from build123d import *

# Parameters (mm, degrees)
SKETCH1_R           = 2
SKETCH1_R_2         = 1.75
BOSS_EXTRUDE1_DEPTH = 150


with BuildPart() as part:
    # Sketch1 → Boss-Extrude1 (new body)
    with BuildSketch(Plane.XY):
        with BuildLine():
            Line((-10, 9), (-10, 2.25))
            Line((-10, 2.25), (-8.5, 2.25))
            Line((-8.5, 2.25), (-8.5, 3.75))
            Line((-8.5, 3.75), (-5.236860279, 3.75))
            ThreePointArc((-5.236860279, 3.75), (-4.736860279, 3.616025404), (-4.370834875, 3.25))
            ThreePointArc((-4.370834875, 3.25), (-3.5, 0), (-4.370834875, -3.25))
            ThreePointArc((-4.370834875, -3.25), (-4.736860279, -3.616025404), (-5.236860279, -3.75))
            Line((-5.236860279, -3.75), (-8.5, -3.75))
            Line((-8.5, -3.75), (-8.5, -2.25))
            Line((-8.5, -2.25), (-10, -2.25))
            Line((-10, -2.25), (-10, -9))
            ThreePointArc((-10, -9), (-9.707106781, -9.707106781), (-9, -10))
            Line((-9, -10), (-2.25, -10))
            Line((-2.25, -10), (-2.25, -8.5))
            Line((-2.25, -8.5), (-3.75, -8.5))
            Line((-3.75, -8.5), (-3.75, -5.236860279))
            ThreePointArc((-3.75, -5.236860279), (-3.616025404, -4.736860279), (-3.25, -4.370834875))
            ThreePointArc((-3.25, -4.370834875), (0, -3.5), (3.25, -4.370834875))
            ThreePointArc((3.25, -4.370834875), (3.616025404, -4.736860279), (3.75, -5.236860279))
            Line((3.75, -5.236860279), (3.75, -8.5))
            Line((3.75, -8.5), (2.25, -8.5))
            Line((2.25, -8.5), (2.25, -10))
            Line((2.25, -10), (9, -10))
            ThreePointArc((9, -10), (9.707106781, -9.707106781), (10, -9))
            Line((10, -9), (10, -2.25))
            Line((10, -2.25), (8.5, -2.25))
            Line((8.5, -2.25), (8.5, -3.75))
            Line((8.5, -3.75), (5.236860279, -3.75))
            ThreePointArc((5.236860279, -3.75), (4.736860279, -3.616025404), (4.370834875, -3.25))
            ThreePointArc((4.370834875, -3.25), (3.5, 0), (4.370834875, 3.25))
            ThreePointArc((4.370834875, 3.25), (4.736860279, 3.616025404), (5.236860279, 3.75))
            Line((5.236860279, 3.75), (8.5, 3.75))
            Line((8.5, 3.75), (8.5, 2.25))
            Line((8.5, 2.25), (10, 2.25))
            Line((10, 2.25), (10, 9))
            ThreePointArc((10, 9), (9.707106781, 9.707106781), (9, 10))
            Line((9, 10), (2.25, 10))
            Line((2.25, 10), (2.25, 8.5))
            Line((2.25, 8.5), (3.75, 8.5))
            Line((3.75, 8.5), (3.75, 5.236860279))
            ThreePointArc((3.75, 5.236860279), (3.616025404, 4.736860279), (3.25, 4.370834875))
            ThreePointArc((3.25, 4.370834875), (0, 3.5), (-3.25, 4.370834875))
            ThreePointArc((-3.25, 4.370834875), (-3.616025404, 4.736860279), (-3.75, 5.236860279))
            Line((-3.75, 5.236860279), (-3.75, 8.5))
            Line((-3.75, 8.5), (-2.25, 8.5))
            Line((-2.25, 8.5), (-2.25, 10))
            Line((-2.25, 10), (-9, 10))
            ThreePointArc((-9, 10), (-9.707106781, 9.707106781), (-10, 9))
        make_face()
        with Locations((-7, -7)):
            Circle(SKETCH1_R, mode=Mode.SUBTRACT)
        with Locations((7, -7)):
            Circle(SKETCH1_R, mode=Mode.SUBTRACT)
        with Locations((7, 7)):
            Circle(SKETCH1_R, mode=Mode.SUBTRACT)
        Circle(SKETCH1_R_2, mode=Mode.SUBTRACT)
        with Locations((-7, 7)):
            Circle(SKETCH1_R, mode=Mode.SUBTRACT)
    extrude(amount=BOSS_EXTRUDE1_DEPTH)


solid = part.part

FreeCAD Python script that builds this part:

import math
import FreeCAD as App
import Part
import Sketcher

V = App.Vector

doc = App.newDocument("Part")
body = doc.addObject("PartDesign::Body", "Body")

# Sketch on XY plane
sketch1 = body.newObject("Sketcher::SketchObject", "Sketch")
sketch1.AttachmentSupport = (doc.getObject("XY_Plane"), [""])
sketch1.MapMode = "FlatFace"
sketch1.addGeometry([
    Part.LineSegment(V(-10, 9, 0), V(-10, 2.25, 0)),  # 0
    Part.LineSegment(V(-10, 2.25, 0), V(-8.5, 2.25, 0)),  # 1
    Part.LineSegment(V(-8.5, 2.25, 0), V(-8.5, 3.75, 0)),  # 2
    Part.LineSegment(V(-8.5, 3.75, 0), V(-5.23686, 3.75, 0)),  # 3
    Part.ArcOfCircle(Part.Circle(V(-5.23686, 2.75, 0), V(0, 0, 1), 1), math.radians(30), math.radians(90)),  # 4
    Part.ArcOfCircle(Part.Circle(V(-10, 0, 0), V(0, 0, 1), 6.5), math.radians(-30), math.radians(30)),  # 5
    Part.ArcOfCircle(Part.Circle(V(-5.23686, -2.75, 0), V(0, 0, 1), 1), math.radians(-90), math.radians(-30)),  # 6
    Part.LineSegment(V(-5.23686, -3.75, 0), V(-8.5, -3.75, 0)),  # 7
    Part.LineSegment(V(-8.5, -3.75, 0), V(-8.5, -2.25, 0)),  # 8
    Part.LineSegment(V(-8.5, -2.25, 0), V(-10, -2.25, 0)),  # 9
    Part.LineSegment(V(-10, -2.25, 0), V(-10, -9, 0)),  # 10
    Part.ArcOfCircle(Part.Circle(V(-9, -9, 0), V(0, 0, 1), 1), math.radians(-180), math.radians(-90)),  # 11
    Part.LineSegment(V(-9, -10, 0), V(-2.25, -10, 0)),  # 12
    Part.LineSegment(V(-2.25, -10, 0), V(-2.25, -8.5, 0)),  # 13
    Part.LineSegment(V(-2.25, -8.5, 0), V(-3.75, -8.5, 0)),  # 14
    Part.LineSegment(V(-3.75, -8.5, 0), V(-3.75, -5.23686, 0)),  # 15
    Part.ArcOfCircle(Part.Circle(V(-2.75, -5.23686, 0), V(0, 0, 1), 1), math.radians(120), math.radians(180)),  # 16
    Part.ArcOfCircle(Part.Circle(V(0, -10, 0), V(0, 0, 1), 6.5), math.radians(60), math.radians(120)),  # 17
    Part.ArcOfCircle(Part.Circle(V(2.75, -5.23686, 0), V(0, 0, 1), 1), math.radians(0), math.radians(60)),  # 18
    Part.LineSegment(V(3.75, -5.23686, 0), V(3.75, -8.5, 0)),  # 19
    Part.LineSegment(V(3.75, -8.5, 0), V(2.25, -8.5, 0)),  # 20
    Part.LineSegment(V(2.25, -8.5, 0), V(2.25, -10, 0)),  # 21
    Part.LineSegment(V(2.25, -10, 0), V(9, -10, 0)),  # 22
    Part.ArcOfCircle(Part.Circle(V(9, -9, 0), V(0, 0, 1), 1), math.radians(-90), math.radians(0)),  # 23
    Part.LineSegment(V(10, -9, 0), V(10, -2.25, 0)),  # 24
    Part.LineSegment(V(10, -2.25, 0), V(8.5, -2.25, 0)),  # 25
    Part.LineSegment(V(8.5, -2.25, 0), V(8.5, -3.75, 0)),  # 26
    Part.LineSegment(V(8.5, -3.75, 0), V(5.23686, -3.75, 0)),  # 27
    Part.ArcOfCircle(Part.Circle(V(5.23686, -2.75, 0), V(0, 0, 1), 1), math.radians(-150), math.radians(-90)),  # 28
    Part.ArcOfCircle(Part.Circle(V(10, 0, 0), V(0, 0, 1), 6.5), math.radians(150), math.radians(210)),  # 29
    Part.ArcOfCircle(Part.Circle(V(5.23686, 2.75, 0), V(0, 0, 1), 1), math.radians(90), math.radians(150)),  # 30
    Part.LineSegment(V(5.23686, 3.75, 0), V(8.5, 3.75, 0)),  # 31
    Part.LineSegment(V(8.5, 3.75, 0), V(8.5, 2.25, 0)),  # 32
    Part.LineSegment(V(8.5, 2.25, 0), V(10, 2.25, 0)),  # 33
    Part.LineSegment(V(10, 2.25, 0), V(10, 9, 0)),  # 34
    Part.ArcOfCircle(Part.Circle(V(9, 9, 0), V(0, 0, 1), 1), math.radians(0), math.radians(90)),  # 35
    Part.LineSegment(V(9, 10, 0), V(2.25, 10, 0)),  # 36
    Part.LineSegment(V(2.25, 10, 0), V(2.25, 8.5, 0)),  # 37
    Part.LineSegment(V(2.25, 8.5, 0), V(3.75, 8.5, 0)),  # 38
    Part.LineSegment(V(3.75, 8.5, 0), V(3.75, 5.23686, 0)),  # 39
    Part.ArcOfCircle(Part.Circle(V(2.75, 5.23686, 0), V(0, 0, 1), 1), math.radians(-60), math.radians(0)),  # 40
    Part.ArcOfCircle(Part.Circle(V(0, 10, 0), V(0, 0, 1), 6.5), math.radians(-120), math.radians(-60)),  # 41
    Part.ArcOfCircle(Part.Circle(V(-2.75, 5.23686, 0), V(0, 0, 1), 1), math.radians(180), math.radians(240)),  # 42
    Part.LineSegment(V(-3.75, 5.23686, 0), V(-3.75, 8.5, 0)),  # 43
    Part.LineSegment(V(-3.75, 8.5, 0), V(-2.25, 8.5, 0)),  # 44
    Part.LineSegment(V(-2.25, 8.5, 0), V(-2.25, 10, 0)),  # 45
    Part.LineSegment(V(-2.25, 10, 0), V(-9, 10, 0)),  # 46
    Part.ArcOfCircle(Part.Circle(V(-9, 9, 0), V(0, 0, 1), 1), math.radians(90), math.radians(180)),  # 47
    Part.Circle(V(-7, -7, 0), V(0, 0, 1), 2),  # 48
    Part.Circle(V(7, -7, 0), V(0, 0, 1), 2),  # 49
    Part.Circle(V(-7, 7, 0), V(0, 0, 1), 2),  # 50
    Part.Circle(V(0, 0, 0), V(0, 0, 1), 1.75),  # 51
    Part.Circle(V(7, 7, 0), V(0, 0, 1), 2),  # 52
], False)
sketch1.addConstraint([
    Sketcher.Constraint("Coincident", 0, 2, 1, 1),
    Sketcher.Constraint("Coincident", 1, 2, 2, 1),
    Sketcher.Constraint("Coincident", 2, 2, 3, 1),
    Sketcher.Constraint("Tangent", 3, 2, 4, 2),
    Sketcher.Constraint("Tangent", 4, 1, 5, 2),
    Sketcher.Constraint("Tangent", 5, 1, 6, 2),
    Sketcher.Constraint("Tangent", 6, 1, 7, 1),
    Sketcher.Constraint("Coincident", 7, 2, 8, 1),
    Sketcher.Constraint("Coincident", 8, 2, 9, 1),
    Sketcher.Constraint("Coincident", 9, 2, 10, 1),
    Sketcher.Constraint("Tangent", 10, 2, 11, 1),
    Sketcher.Constraint("Tangent", 11, 2, 12, 1),
    Sketcher.Constraint("Coincident", 12, 2, 13, 1),
    Sketcher.Constraint("Coincident", 13, 2, 14, 1),
    Sketcher.Constraint("Coincident", 14, 2, 15, 1),
    Sketcher.Constraint("Tangent", 15, 2, 16, 2),
    Sketcher.Constraint("Tangent", 16, 1, 17, 2),
    Sketcher.Constraint("Tangent", 17, 1, 18, 2),
    Sketcher.Constraint("Tangent", 18, 1, 19, 1),
    Sketcher.Constraint("Coincident", 19, 2, 20, 1),
    Sketcher.Constraint("Coincident", 20, 2, 21, 1),
    Sketcher.Constraint("Coincident", 21, 2, 22, 1),
    Sketcher.Constraint("Tangent", 22, 2, 23, 1),
    Sketcher.Constraint("Tangent", 23, 2, 24, 1),
    Sketcher.Constraint("Coincident", 24, 2, 25, 1),
    Sketcher.Constraint("Coincident", 25, 2, 26, 1),
    Sketcher.Constraint("Coincident", 26, 2, 27, 1),
    Sketcher.Constraint("Tangent", 27, 2, 28, 2),
    Sketcher.Constraint("Tangent", 28, 1, 29, 2),
    Sketcher.Constraint("Tangent", 29, 1, 30, 2),
    Sketcher.Constraint("Tangent", 30, 1, 31, 1),
    Sketcher.Constraint("Coincident", 31, 2, 32, 1),
    Sketcher.Constraint("Coincident", 32, 2, 33, 1),
    Sketcher.Constraint("Coincident", 33, 2, 34, 1),
    Sketcher.Constraint("Tangent", 34, 2, 35, 1),
    Sketcher.Constraint("Tangent", 35, 2, 36, 1),
    Sketcher.Constraint("Coincident", 36, 2, 37, 1),
    Sketcher.Constraint("Coincident", 37, 2, 38, 1),
    Sketcher.Constraint("Coincident", 38, 2, 39, 1),
    Sketcher.Constraint("Tangent", 39, 2, 40, 2),
    Sketcher.Constraint("Tangent", 40, 1, 41, 2),
    Sketcher.Constraint("Tangent", 41, 1, 42, 2),
    Sketcher.Constraint("Tangent", 42, 1, 43, 1),
    Sketcher.Constraint("Coincident", 43, 2, 44, 1),
    Sketcher.Constraint("Coincident", 44, 2, 45, 1),
    Sketcher.Constraint("Coincident", 45, 2, 46, 1),
    Sketcher.Constraint("Tangent", 46, 2, 47, 1),
    Sketcher.Constraint("Tangent", 47, 2, 0, 1),
    Sketcher.Constraint("Vertical", 0),
    Sketcher.Constraint("Horizontal", 1),
    Sketcher.Constraint("Vertical", 2),
    Sketcher.Constraint("Horizontal", 3),
    Sketcher.Constraint("Horizontal", 7),
    Sketcher.Constraint("Vertical", 8),
    Sketcher.Constraint("Horizontal", 9),
    Sketcher.Constraint("Vertical", 10),
    Sketcher.Constraint("Horizontal", 12),
    Sketcher.Constraint("Vertical", 13),
    Sketcher.Constraint("Horizontal", 14),
    Sketcher.Constraint("Vertical", 15),
    Sketcher.Constraint("Vertical", 19),
    Sketcher.Constraint("Horizontal", 20),
    Sketcher.Constraint("Vertical", 21),
    Sketcher.Constraint("Horizontal", 22),
    Sketcher.Constraint("Vertical", 24),
    Sketcher.Constraint("Horizontal", 25),
    Sketcher.Constraint("Vertical", 26),
    Sketcher.Constraint("Horizontal", 27),
    Sketcher.Constraint("Horizontal", 31),
    Sketcher.Constraint("Vertical", 32),
    Sketcher.Constraint("Horizontal", 33),
    Sketcher.Constraint("Vertical", 34),
    Sketcher.Constraint("Horizontal", 36),
    Sketcher.Constraint("Vertical", 37),
    Sketcher.Constraint("Horizontal", 38),
    Sketcher.Constraint("Vertical", 39),
    Sketcher.Constraint("Vertical", 43),
    Sketcher.Constraint("Horizontal", 44),
    Sketcher.Constraint("Vertical", 45),
    Sketcher.Constraint("Horizontal", 46),
    Sketcher.Constraint("Coincident", 51, 3, -1, 1),
    Sketcher.Constraint("Equal", 4, 6),
    Sketcher.Constraint("Equal", 6, 11),
    Sketcher.Constraint("Equal", 11, 16),
    Sketcher.Constraint("Equal", 5, 17),
    Sketcher.Constraint("Equal", 16, 18),
    Sketcher.Constraint("Equal", 18, 23),
    Sketcher.Constraint("Equal", 23, 28),
    Sketcher.Constraint("Equal", 17, 29),
    Sketcher.Constraint("Equal", 28, 30),
    Sketcher.Constraint("Equal", 30, 35),
    Sketcher.Constraint("Equal", 35, 40),
    Sketcher.Constraint("Equal", 29, 41),
    Sketcher.Constraint("Equal", 40, 42),
    Sketcher.Constraint("Equal", 42, 47),
    Sketcher.Constraint("Equal", 48, 49),
    Sketcher.Constraint("Equal", 49, 50),
    Sketcher.Constraint("Equal", 50, 52),
    Sketcher.Constraint("Symmetric", 4, 3, 28, 3, -1, 1),
    Sketcher.Constraint("Symmetric", 6, 3, 30, 3, -1, 1),
    Sketcher.Constraint("Symmetric", 11, 3, 35, 3, -1, 1),
    Sketcher.Constraint("Symmetric", 16, 3, 40, 3, -1, 1),
    Sketcher.Constraint("Symmetric", 18, 3, 42, 3, -1, 1),
    Sketcher.Constraint("Symmetric", 23, 3, 47, 3, -1, 1),
    Sketcher.Constraint("Symmetric", 49, 3, 50, 3, -1, 1),
    Sketcher.Constraint("Symmetric", 48, 3, 52, 3, -1, 1),
    Sketcher.Constraint("Symmetric", 1, 2, 25, 2, -1, 1),
    Sketcher.Constraint("Symmetric", 8, 2, 32, 2, -1, 1),
    Sketcher.Constraint("Symmetric", 13, 2, 37, 2, -1, 1),
    Sketcher.Constraint("Symmetric", 20, 2, 44, 2, -1, 1),
    Sketcher.Constraint("Symmetric", 16, 3, 18, 3, -2),
    Sketcher.Constraint("Symmetric", 11, 3, 23, 3, -2),
    Sketcher.Constraint("Symmetric", 6, 3, 28, 3, -2),
    Sketcher.Constraint("Symmetric", 48, 3, 49, 3, -2),
    Sketcher.Constraint("Symmetric", 13, 2, 20, 2, -2),
    Sketcher.Constraint("Symmetric", 8, 2, 25, 2, -2),
    Sketcher.Constraint("Horizontal", 17, 3, 11, 2),
    Sketcher.Constraint("Vertical", 5, 3, 0, 2),
    Sketcher.Constraint("Equal", 9, 14),
    Sketcher.Constraint("Equal", 46, 0),
    Sketcher.Constraint("Equal", 44, 2),
    Sketcher.Constraint("Equal", 8, 13),
    Sketcher.Constraint("Equal", 31, 15),
    Sketcher.Constraint("Diameter", 48, 4.0),
    Sketcher.Constraint("Radius", 4, 1.0),
    Sketcher.Constraint("Diameter", 51, 3.5),
    Sketcher.Constraint("Radius", 5, 6.5),
    Sketcher.Constraint("DistanceX", 1, 1, 1, 2, 1.5),
    Sketcher.Constraint("DistanceX", 5, 3, -1, 1, 10.0),
    Sketcher.Constraint("DistanceX", 48, 3, -1, 1, 7.0),
    Sketcher.Constraint("DistanceY", 48, 3, -1, 1, 7.0),
    Sketcher.Constraint("DistanceX", 12, 1, 12, 2, 6.75),
])
pad1 = body.newObject("PartDesign::Pad", "Pad")
pad1.Profile = sketch1
pad1.Length = 150

doc.recompute()
